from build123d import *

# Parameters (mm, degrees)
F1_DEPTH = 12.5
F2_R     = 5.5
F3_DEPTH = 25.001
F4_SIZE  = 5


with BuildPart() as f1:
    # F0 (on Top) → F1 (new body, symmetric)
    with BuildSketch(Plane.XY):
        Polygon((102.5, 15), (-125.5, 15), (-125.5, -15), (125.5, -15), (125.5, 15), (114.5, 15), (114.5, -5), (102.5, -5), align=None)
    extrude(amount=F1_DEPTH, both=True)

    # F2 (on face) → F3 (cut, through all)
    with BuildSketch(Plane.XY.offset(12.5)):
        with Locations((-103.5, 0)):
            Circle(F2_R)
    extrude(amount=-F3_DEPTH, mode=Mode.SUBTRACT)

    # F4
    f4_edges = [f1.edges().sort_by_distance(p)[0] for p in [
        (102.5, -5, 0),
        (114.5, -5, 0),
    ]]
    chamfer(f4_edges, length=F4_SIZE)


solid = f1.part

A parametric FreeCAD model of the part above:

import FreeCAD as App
import Part
import Sketcher

V = App.Vector
Q = App.Units.Quantity


def edges_at(feature, points):
    """Names of the edges that pass closest to the given points."""
    edges = feature.Shape.Edges
    near = lambda p: min(range(len(edges)), key=lambda i: edges[i].distToShape(Part.Vertex(*p))[0])
    return sorted({f"Edge{near(p) + 1}" for p in points})

doc = App.newDocument("Part")
body = doc.addObject("PartDesign::Body", "Body")

# Sketch on XY plane
sketch1 = doc.addObject("Sketcher::SketchObject", "Sketch")
body.addObject(sketch1)
sketch1.AttachmentSupport = (doc.XY_Plane, [""])
sketch1.MapMode = "FlatFace"
sketch1.addGeometry(Part.LineSegment(V(102.5, 15, 0), V(-125.5, 15, 0)), False)
sketch1.addGeometry(Part.LineSegment(V(-125.5, 15, 0), V(-125.5, -15, 0)), False)
sketch1.addGeometry(Part.LineSegment(V(-125.5, -15, 0), V(125.5, -15, 0)), False)
sketch1.addGeometry(Part.LineSegment(V(125.5, -15, 0), V(125.5, 15, 0)), False)
sketch1.addGeometry(Part.LineSegment(V(125.5, 15, 0), V(114.5, 15, 0)), False)
sketch1.addGeometry(Part.LineSegment(V(114.5, 15, 0), V(114.5, -5, 0)), False)
sketch1.addGeometry(Part.LineSegment(V(114.5, -5, 0), V(102.5, -5, 0)), False)
sketch1.addGeometry(Part.LineSegment(V(102.5, -5, 0), V(102.5, 15, 0)), False)
sketch1.addConstraint(Sketcher.Constraint("Coincident", 0, 2, 1, 1))
sketch1.addConstraint(Sketcher.Constraint("Coincident", 1, 2, 2, 1))
sketch1.addConstraint(Sketcher.Constraint("Coincident", 2, 2, 3, 1))
sketch1.addConstraint(Sketcher.Constraint("Coincident", 3, 2, 4, 1))
sketch1.addConstraint(Sketcher.Constraint("Coincident", 4, 2, 5, 1))
sketch1.addConstraint(Sketcher.Constraint("Coincident", 5, 2, 6, 1))
sketch1.addConstraint(Sketcher.Constraint("Coincident", 6, 2, 7, 1))
sketch1.addConstraint(Sketcher.Constraint("Coincident", 7, 2, 0, 1))
sketch1.addConstraint(Sketcher.Constraint("Horizontal", 0))
sketch1.addConstraint(Sketcher.Constraint("Vertical", 1))
sketch1.addConstraint(Sketcher.Constraint("Horizontal", 2))
sketch1.addConstraint(Sketcher.Constraint("Vertical", 3))
sketch1.addConstraint(Sketcher.Constraint("Horizontal", 4))
sketch1.addConstraint(Sketcher.Constraint("Vertical", 5))
sketch1.addConstraint(Sketcher.Constraint("Horizontal", 6))
sketch1.addConstraint(Sketcher.Constraint("Vertical", 7))
sketch1.addConstraint(Sketcher.Constraint("Symmetric", 0, 2, 2, 2, -1, 1))
sketch1.addConstraint(Sketcher.Constraint("Horizontal", 0, 2, 3, 2))
sketch1.addConstraint(Sketcher.Constraint("DistanceX", 0, 2, 0, 1, Q("228 mm")))
sketch1.addConstraint(Sketcher.Constraint("DistanceX", 2, 1, 2, 2, Q("251 mm")))
sketch1.addConstraint(Sketcher.Constraint("DistanceX", 4, 2, 4, 1, Q("11 mm")))
sketch1.addConstraint(Sketcher.Constraint("DistanceY", 1, 2, 1, 1, Q("30 mm")))
sketch1.addConstraint(Sketcher.Constraint("DistanceY", 5, 2, 5, 1, Q("20 mm")))
pad1 = doc.addObject("PartDesign::Pad", "Pad")
body.addObject(pad1)
pad1.Profile = sketch1
pad1.Length = 25
pad1.Midplane = True

# Sketch on XY plane
sketch2 = doc.addObject("Sketcher::SketchObject", "Sketch001")
body.addObject(sketch2)
sketch2.AttachmentSupport = (doc.XY_Plane, [""])
sketch2.MapMode = "FlatFace"
sketch2.AttachmentOffset = App.Placement(V(0, 0, 12.5), App.Rotation())
sketch2.addGeometry(Part.Circle(V(-103.5, 0, 0), V(0, 0, 1), 5.5), False)
sketch2.addConstraint(Sketcher.Constraint("PointOnObject", 0, 3, -1))
sketch2.addConstraint(Sketcher.Constraint("Diameter", 0, Q("11 mm")))
sketch2.addConstraint(Sketcher.Constraint("DistanceX", 0, 3, -1, 1, Q("103.5 mm")))
pocket1 = doc.addObject("PartDesign::Pocket", "Pocket")
body.addObject(pocket1)
pocket1.Profile = sketch2
pocket1.Type = "ThroughAll"
doc.recompute()

chamfer = doc.addObject("PartDesign::Chamfer", "Chamfer")
body.addObject(chamfer)
chamfer.Base = (pocket1, edges_at(pocket1, [(102.5, -5, 0), (114.5, -5, 0)]))
chamfer.Size = 5

doc.recompute()
